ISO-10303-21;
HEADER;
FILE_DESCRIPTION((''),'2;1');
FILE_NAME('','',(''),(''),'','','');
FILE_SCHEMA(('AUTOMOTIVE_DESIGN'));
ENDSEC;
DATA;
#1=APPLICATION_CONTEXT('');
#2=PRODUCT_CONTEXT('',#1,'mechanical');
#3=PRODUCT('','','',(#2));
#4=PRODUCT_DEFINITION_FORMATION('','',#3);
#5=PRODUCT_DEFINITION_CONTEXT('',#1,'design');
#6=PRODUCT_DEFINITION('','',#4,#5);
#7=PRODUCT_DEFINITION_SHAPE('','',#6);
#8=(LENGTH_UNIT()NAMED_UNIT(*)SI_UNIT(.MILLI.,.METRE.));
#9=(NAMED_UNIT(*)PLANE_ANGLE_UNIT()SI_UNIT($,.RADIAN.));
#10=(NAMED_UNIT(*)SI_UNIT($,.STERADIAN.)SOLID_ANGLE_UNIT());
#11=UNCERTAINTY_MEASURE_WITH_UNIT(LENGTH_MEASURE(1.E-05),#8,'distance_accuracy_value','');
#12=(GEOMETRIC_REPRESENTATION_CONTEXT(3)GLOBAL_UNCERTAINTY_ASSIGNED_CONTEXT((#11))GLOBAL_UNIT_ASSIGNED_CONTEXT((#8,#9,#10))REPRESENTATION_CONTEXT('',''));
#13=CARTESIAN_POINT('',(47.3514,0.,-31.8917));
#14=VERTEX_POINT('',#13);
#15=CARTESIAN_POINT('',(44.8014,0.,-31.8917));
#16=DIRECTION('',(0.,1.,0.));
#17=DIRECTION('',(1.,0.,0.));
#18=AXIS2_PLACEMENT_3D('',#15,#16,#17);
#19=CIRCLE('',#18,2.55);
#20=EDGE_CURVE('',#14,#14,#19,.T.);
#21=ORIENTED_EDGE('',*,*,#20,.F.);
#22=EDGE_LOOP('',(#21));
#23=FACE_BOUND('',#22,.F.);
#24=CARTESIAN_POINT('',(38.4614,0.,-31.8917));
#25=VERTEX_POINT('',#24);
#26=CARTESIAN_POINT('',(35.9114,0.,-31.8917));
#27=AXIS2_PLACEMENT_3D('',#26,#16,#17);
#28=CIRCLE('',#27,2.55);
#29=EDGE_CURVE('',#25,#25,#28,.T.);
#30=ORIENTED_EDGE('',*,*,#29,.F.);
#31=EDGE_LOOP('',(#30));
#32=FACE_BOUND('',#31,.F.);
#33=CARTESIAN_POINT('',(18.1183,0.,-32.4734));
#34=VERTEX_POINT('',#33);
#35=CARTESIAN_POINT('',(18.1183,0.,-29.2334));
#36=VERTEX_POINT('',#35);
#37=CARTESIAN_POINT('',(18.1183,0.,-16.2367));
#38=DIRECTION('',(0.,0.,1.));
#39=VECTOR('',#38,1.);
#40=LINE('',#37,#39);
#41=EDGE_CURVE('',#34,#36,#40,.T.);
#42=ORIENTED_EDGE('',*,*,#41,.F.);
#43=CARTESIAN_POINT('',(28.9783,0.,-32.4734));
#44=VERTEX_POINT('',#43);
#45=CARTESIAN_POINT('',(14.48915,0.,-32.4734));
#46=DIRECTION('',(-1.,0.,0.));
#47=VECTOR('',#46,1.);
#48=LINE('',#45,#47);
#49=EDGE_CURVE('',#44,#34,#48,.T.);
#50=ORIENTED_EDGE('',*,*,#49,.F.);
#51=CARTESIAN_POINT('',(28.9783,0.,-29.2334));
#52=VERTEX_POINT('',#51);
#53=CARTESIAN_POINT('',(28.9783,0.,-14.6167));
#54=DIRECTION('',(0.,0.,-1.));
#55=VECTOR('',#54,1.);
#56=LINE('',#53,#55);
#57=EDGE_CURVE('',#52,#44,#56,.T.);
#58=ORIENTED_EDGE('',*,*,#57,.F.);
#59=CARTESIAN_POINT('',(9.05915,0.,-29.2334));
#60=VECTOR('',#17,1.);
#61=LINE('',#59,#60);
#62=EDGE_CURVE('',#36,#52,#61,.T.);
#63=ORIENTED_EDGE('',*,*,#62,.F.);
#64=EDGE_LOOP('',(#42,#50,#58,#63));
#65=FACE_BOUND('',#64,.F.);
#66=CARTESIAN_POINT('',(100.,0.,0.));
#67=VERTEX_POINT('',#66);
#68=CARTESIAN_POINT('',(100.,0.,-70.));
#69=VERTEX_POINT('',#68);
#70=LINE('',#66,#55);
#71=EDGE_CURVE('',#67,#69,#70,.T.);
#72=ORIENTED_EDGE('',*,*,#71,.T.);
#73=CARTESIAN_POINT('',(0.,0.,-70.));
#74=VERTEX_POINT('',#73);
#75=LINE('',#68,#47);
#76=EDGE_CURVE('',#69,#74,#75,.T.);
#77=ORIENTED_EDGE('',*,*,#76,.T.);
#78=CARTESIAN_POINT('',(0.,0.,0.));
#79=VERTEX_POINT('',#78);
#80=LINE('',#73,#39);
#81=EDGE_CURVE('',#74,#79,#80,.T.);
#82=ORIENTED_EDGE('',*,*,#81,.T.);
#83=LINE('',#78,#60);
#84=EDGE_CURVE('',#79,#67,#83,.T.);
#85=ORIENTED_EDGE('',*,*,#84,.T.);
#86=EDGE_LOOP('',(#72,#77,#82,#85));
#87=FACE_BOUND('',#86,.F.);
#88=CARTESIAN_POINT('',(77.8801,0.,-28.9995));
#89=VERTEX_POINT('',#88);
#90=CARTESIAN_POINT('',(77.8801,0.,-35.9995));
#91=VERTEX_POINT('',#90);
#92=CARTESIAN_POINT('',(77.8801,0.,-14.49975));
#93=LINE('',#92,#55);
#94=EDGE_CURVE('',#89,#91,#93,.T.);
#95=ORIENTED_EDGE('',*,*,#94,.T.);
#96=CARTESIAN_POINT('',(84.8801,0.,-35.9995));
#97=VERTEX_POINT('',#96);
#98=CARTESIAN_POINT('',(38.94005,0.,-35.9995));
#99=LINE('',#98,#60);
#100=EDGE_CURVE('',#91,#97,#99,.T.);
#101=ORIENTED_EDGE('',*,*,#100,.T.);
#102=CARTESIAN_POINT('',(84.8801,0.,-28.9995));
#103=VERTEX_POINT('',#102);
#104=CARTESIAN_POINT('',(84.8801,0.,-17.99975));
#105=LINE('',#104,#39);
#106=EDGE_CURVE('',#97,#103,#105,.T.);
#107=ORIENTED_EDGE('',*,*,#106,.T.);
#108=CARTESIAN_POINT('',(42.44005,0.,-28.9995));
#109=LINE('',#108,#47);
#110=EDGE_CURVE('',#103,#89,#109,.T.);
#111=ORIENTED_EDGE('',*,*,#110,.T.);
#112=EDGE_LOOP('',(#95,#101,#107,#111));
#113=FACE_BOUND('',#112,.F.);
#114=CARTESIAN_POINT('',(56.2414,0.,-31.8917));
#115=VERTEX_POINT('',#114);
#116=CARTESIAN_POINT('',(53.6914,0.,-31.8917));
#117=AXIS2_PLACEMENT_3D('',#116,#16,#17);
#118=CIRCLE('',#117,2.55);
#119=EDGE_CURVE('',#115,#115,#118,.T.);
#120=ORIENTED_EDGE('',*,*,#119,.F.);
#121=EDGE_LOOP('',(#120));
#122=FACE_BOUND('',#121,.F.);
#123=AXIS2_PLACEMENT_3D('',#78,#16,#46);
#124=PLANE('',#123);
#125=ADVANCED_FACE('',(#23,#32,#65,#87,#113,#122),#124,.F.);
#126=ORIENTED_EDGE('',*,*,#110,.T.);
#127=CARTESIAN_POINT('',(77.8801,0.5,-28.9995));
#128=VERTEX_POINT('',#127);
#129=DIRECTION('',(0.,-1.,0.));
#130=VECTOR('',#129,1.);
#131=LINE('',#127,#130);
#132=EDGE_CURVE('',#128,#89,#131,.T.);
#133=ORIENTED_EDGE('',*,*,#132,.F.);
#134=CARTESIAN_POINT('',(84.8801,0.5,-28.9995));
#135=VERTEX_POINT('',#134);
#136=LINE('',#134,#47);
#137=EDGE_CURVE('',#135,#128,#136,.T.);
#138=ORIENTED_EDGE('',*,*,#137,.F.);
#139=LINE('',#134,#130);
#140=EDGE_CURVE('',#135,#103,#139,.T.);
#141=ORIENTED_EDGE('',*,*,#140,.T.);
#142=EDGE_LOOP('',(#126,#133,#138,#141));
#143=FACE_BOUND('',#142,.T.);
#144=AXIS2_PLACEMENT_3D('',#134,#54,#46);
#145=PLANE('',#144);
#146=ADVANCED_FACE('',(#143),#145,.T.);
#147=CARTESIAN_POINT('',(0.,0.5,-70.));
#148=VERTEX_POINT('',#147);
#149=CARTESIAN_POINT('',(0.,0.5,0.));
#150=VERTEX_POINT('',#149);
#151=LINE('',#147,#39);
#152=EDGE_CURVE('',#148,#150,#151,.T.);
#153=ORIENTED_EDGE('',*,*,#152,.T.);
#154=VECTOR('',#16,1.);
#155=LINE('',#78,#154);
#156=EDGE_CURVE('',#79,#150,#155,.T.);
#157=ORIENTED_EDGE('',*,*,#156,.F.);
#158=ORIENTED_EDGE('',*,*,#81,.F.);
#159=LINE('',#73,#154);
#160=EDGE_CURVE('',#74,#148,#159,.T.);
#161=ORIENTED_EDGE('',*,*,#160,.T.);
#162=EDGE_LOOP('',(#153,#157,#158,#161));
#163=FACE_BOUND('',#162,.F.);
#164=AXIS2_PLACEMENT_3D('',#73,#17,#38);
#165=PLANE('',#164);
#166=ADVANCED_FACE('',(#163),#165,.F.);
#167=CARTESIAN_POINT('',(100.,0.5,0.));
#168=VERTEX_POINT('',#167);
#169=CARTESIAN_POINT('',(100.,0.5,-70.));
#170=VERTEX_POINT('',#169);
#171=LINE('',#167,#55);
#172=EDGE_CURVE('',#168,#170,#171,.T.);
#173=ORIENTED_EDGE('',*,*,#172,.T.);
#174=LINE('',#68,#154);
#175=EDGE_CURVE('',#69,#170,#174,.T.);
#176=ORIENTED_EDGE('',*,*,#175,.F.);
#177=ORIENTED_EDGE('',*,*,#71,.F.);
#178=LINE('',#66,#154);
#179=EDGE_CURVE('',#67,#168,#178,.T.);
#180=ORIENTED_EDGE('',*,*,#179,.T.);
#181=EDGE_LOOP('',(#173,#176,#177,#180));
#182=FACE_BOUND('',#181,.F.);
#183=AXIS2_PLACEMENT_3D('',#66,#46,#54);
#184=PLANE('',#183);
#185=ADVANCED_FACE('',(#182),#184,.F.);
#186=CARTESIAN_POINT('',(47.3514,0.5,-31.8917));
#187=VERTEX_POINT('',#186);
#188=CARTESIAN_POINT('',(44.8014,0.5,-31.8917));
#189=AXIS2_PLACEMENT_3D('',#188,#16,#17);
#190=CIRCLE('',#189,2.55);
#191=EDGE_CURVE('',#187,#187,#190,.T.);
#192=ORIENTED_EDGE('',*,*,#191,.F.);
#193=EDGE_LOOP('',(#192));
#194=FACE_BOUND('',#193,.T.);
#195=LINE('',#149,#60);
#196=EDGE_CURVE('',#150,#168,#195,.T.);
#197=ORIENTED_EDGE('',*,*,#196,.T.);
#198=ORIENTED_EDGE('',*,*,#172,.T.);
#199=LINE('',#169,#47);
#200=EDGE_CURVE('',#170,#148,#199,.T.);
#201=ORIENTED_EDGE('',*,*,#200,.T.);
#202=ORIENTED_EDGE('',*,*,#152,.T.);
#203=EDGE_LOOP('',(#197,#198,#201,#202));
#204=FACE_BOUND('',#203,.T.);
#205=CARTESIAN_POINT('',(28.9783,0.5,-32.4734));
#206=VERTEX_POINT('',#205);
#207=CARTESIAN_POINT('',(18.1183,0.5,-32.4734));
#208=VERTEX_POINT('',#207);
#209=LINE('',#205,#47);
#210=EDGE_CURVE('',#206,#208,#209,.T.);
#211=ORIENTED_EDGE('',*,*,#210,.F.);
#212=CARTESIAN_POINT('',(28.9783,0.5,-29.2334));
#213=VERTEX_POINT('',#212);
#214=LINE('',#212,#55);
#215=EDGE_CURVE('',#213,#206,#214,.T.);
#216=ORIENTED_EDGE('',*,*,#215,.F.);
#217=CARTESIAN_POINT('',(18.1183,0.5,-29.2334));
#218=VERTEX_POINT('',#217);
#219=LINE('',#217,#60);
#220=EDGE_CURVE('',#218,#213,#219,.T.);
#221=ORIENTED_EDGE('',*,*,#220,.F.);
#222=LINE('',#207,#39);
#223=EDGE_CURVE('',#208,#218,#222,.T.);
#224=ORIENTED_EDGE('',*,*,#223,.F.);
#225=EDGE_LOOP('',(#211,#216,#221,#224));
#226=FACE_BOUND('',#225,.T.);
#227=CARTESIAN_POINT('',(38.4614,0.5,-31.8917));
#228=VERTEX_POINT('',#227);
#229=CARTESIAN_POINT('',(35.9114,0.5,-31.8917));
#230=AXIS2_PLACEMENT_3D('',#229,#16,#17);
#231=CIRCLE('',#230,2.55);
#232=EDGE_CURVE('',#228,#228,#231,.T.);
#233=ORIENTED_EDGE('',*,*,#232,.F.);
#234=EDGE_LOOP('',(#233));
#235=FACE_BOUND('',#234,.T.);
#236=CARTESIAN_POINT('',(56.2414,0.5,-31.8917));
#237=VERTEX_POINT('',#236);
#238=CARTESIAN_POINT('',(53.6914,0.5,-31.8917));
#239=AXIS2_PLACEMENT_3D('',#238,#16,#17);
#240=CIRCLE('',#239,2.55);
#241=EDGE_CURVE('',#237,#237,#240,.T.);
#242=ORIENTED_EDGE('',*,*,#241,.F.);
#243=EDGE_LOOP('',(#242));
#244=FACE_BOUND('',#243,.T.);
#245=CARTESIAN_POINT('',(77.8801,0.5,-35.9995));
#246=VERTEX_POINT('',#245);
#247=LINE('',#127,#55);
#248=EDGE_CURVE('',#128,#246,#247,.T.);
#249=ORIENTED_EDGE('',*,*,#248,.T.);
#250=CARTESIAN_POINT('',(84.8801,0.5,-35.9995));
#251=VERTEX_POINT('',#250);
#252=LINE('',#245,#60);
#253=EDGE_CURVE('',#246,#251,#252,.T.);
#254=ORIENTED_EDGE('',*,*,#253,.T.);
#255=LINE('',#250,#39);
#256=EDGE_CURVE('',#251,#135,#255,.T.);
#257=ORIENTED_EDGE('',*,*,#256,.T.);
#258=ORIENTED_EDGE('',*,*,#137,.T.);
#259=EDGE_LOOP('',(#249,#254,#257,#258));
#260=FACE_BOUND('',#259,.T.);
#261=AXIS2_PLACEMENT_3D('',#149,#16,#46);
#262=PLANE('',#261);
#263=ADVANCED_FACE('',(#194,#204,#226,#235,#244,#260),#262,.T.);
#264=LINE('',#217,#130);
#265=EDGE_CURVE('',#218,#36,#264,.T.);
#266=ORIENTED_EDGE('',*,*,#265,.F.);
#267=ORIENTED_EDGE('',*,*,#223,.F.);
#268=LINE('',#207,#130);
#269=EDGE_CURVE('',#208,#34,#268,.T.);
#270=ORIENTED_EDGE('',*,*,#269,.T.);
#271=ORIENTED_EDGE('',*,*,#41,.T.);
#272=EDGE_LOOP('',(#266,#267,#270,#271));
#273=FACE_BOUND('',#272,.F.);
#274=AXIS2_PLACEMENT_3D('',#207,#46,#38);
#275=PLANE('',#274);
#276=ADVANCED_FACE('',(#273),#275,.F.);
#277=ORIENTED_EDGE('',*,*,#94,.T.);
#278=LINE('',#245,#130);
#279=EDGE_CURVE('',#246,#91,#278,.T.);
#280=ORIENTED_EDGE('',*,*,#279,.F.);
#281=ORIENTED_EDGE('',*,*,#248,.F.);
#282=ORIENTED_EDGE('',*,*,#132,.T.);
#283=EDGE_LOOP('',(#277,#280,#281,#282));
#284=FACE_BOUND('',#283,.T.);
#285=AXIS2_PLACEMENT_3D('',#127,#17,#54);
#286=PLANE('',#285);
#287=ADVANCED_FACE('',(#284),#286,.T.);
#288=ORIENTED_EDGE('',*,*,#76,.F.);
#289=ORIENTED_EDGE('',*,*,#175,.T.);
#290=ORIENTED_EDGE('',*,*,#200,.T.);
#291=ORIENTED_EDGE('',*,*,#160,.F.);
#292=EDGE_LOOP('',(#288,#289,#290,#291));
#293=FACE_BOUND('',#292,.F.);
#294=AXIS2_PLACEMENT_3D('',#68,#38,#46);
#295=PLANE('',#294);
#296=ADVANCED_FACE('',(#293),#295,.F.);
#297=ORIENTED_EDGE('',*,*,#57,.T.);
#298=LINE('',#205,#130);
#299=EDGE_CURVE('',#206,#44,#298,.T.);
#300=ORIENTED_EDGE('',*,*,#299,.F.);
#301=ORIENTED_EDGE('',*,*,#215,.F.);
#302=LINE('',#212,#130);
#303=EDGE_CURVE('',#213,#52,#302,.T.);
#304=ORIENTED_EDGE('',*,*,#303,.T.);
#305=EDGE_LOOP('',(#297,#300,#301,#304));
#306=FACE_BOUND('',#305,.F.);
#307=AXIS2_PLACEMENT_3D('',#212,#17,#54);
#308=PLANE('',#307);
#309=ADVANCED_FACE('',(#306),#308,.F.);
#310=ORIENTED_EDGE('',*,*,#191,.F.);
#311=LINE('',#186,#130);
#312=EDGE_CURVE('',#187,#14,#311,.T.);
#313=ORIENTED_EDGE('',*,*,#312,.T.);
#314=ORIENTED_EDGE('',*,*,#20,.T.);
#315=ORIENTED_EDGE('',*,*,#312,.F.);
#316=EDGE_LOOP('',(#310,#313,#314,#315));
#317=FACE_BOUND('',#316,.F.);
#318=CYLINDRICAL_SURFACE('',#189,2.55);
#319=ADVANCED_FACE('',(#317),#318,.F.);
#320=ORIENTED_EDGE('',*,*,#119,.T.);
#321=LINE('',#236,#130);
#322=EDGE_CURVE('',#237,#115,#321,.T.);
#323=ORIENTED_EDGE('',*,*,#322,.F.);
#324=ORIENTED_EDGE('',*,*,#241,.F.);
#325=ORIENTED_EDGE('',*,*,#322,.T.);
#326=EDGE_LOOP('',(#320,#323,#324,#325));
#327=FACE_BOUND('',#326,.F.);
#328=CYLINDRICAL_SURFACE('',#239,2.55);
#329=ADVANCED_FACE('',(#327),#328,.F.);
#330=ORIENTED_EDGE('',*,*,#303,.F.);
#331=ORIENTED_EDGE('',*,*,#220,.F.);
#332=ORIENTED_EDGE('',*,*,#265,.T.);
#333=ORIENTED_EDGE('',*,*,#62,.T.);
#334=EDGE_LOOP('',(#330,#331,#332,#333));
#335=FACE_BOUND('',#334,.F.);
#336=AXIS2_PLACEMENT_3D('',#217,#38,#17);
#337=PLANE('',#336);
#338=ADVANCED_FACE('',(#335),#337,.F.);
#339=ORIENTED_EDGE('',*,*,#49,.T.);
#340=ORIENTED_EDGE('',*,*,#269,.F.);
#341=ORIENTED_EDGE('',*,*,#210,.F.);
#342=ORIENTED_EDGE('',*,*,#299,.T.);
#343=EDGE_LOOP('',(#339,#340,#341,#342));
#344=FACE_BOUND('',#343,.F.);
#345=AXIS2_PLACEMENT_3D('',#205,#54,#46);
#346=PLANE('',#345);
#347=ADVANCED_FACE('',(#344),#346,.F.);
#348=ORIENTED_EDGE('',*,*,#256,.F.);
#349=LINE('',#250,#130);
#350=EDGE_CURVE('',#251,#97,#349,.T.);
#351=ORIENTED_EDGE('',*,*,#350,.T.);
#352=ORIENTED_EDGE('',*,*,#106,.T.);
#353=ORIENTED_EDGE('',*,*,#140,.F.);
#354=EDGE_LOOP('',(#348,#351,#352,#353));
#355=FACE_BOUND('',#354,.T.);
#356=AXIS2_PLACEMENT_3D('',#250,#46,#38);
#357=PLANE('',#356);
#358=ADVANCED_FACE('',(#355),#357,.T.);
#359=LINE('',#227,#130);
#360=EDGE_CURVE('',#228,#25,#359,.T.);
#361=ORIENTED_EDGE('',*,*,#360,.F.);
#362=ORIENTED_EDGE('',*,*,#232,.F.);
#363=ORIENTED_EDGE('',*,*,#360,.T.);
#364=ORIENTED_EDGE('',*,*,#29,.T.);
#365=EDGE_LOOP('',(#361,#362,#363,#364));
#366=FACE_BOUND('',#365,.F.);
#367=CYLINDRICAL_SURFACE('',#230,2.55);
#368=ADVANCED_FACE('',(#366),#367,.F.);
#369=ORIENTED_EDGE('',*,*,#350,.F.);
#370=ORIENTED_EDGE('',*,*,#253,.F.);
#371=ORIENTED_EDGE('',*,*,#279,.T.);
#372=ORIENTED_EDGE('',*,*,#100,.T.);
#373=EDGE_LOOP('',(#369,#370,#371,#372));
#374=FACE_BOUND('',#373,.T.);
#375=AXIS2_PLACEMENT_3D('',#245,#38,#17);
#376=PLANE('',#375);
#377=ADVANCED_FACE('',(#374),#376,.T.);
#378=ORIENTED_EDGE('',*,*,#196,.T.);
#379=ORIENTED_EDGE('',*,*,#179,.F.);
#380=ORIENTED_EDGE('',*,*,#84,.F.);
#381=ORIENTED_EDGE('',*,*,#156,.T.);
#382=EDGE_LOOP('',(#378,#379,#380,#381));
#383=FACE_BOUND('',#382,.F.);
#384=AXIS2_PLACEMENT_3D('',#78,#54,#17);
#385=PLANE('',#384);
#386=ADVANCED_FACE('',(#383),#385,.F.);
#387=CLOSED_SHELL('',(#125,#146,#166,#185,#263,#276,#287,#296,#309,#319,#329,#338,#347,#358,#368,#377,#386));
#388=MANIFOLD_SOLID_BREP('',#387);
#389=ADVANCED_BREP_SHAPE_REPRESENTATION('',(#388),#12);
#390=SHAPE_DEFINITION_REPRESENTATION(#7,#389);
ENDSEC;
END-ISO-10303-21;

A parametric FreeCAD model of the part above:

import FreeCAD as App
import Part
import Sketcher
from FreeCAD import Vector


def add_polygon(sketch, points):
    """Adds a closed chain of lines whose ends are joined by coincident constraints."""
    first, n = sketch.GeometryCount, len(points)
    for a, b in zip(points, points[1:] + points[:1]):
        sketch.addGeometry(Part.LineSegment(App.Vector(*a, 0), App.Vector(*b, 0)), False)
    for i in range(n):
        sketch.addConstraint(Sketcher.Constraint("Coincident", first + i, 2, first + (i + 1) % n, 1))

doc = App.newDocument("Part")
body = doc.addObject("PartDesign::Body", "Body")

sketch1 = body.newObject("Sketcher::SketchObject", "Sketch")
sketch1.AttachmentSupport = (doc.getObject("XZ_Plane"), [""])
sketch1.MapMode = "FlatFace"
add_polygon(sketch1, [(0, -70), (0, 0), (100, 0), (100, -70)])
sketch1.addConstraint([
    Sketcher.Constraint("Vertical", 0),
    Sketcher.Constraint("Horizontal", 1),
    Sketcher.Constraint("Vertical", 2),
    Sketcher.Constraint("Horizontal", 3),
    Sketcher.Constraint("Coincident", 0, 2, -1, 1),
    Sketcher.Constraint("DistanceX", 1, 1, 1, 2, 100.0),
    Sketcher.Constraint("DistanceY", 0, 1, 0, 2, 70.0),
])
pad1 = body.newObject("PartDesign::Pad", "Pad")
pad1.Profile = sketch1
pad1.Length = 0.5
pad1.Reversed = True

sketch2 = body.newObject("Sketcher::SketchObject", "Sketch001")
sketch2.AttachmentSupport = (doc.getObject("XZ_Plane"), [""])
sketch2.MapMode = "FlatFace"
sketch2.AttachmentOffset = App.Placement(Vector(0, 0, -0.5), App.Rotation())
add_polygon(sketch2, [(77.9, -29), (84.9, -29), (84.9, -36), (77.9, -36)])
sketch2.addGeometry(Part.Circle(Vector(53.7, -31.9, 0), Vector(0, 0, 1), 2.5), False)
sketch2.addGeometry(Part.Circle(Vector(44.8, -31.9, 0), Vector(0, 0, 1), 2.5), False)
sketch2.addGeometry(Part.Circle(Vector(35.9, -31.9, 0), Vector(0, 0, 1), 2.5), False)
add_polygon(sketch2, [(29, -29.2), (29, -32.5), (18.1, -32.5), (18.1, -29.2)])
sketch2.addConstraint([
    Sketcher.Constraint("Horizontal", 0),
    Sketcher.Constraint("Vertical", 1),
    Sketcher.Constraint("Horizontal", 2),
    Sketcher.Constraint("Vertical", 3),
    Sketcher.Constraint("Vertical", 7),
    Sketcher.Constraint("Horizontal", 8),
    Sketcher.Constraint("Vertical", 9),
    Sketcher.Constraint("Horizontal", 10),
    Sketcher.Constraint("Equal", 4, 5),
    Sketcher.Constraint("Equal", 5, 6),
    Sketcher.Constraint("Horizontal", 4, 3, 5, 3),
    Sketcher.Constraint("Horizontal", 5, 3, 6, 3),
    Sketcher.Constraint("Equal", 2, 1),
    Sketcher.Constraint("Diameter", 4, 5.1),
    Sketcher.Constraint("DistanceX", 0, 1, 0, 2, 7.0),
    Sketcher.Constraint("DistanceX", 8, 2, 8, 1, 10.86),
    Sketcher.Constraint("DistanceY", 7, 2, 7, 1, 3.24),
    Sketcher.Constraint("DistanceX", -1, 1, 0, 2, 84.88),
    Sketcher.Constraint("DistanceX", 5, 3, 4, 3, 8.89),
    Sketcher.Constraint("DistanceX", 6, 3, 5, 3, 8.89),
    Sketcher.Constraint("DistanceX", 7, 2, 6, 3, 6.933),
    Sketcher.Constraint("DistanceY", 7, 2, 3, 2, 3.474),
    Sketcher.Constraint("DistanceX", -1, 1, 4, 3, 53.6914),
    Sketcher.Constraint("DistanceY", 4, 3, -1, 1, 31.8917),
    Sketcher.Constraint("DistanceY", 0, 2, -1, 1, 28.9995),
])
pocket1 = body.newObject("PartDesign::Pocket", "Pocket")
pocket1.Profile = sketch2
pocket1.Type = "ThroughAll"
pocket1.Reversed = True

doc.recompute()
